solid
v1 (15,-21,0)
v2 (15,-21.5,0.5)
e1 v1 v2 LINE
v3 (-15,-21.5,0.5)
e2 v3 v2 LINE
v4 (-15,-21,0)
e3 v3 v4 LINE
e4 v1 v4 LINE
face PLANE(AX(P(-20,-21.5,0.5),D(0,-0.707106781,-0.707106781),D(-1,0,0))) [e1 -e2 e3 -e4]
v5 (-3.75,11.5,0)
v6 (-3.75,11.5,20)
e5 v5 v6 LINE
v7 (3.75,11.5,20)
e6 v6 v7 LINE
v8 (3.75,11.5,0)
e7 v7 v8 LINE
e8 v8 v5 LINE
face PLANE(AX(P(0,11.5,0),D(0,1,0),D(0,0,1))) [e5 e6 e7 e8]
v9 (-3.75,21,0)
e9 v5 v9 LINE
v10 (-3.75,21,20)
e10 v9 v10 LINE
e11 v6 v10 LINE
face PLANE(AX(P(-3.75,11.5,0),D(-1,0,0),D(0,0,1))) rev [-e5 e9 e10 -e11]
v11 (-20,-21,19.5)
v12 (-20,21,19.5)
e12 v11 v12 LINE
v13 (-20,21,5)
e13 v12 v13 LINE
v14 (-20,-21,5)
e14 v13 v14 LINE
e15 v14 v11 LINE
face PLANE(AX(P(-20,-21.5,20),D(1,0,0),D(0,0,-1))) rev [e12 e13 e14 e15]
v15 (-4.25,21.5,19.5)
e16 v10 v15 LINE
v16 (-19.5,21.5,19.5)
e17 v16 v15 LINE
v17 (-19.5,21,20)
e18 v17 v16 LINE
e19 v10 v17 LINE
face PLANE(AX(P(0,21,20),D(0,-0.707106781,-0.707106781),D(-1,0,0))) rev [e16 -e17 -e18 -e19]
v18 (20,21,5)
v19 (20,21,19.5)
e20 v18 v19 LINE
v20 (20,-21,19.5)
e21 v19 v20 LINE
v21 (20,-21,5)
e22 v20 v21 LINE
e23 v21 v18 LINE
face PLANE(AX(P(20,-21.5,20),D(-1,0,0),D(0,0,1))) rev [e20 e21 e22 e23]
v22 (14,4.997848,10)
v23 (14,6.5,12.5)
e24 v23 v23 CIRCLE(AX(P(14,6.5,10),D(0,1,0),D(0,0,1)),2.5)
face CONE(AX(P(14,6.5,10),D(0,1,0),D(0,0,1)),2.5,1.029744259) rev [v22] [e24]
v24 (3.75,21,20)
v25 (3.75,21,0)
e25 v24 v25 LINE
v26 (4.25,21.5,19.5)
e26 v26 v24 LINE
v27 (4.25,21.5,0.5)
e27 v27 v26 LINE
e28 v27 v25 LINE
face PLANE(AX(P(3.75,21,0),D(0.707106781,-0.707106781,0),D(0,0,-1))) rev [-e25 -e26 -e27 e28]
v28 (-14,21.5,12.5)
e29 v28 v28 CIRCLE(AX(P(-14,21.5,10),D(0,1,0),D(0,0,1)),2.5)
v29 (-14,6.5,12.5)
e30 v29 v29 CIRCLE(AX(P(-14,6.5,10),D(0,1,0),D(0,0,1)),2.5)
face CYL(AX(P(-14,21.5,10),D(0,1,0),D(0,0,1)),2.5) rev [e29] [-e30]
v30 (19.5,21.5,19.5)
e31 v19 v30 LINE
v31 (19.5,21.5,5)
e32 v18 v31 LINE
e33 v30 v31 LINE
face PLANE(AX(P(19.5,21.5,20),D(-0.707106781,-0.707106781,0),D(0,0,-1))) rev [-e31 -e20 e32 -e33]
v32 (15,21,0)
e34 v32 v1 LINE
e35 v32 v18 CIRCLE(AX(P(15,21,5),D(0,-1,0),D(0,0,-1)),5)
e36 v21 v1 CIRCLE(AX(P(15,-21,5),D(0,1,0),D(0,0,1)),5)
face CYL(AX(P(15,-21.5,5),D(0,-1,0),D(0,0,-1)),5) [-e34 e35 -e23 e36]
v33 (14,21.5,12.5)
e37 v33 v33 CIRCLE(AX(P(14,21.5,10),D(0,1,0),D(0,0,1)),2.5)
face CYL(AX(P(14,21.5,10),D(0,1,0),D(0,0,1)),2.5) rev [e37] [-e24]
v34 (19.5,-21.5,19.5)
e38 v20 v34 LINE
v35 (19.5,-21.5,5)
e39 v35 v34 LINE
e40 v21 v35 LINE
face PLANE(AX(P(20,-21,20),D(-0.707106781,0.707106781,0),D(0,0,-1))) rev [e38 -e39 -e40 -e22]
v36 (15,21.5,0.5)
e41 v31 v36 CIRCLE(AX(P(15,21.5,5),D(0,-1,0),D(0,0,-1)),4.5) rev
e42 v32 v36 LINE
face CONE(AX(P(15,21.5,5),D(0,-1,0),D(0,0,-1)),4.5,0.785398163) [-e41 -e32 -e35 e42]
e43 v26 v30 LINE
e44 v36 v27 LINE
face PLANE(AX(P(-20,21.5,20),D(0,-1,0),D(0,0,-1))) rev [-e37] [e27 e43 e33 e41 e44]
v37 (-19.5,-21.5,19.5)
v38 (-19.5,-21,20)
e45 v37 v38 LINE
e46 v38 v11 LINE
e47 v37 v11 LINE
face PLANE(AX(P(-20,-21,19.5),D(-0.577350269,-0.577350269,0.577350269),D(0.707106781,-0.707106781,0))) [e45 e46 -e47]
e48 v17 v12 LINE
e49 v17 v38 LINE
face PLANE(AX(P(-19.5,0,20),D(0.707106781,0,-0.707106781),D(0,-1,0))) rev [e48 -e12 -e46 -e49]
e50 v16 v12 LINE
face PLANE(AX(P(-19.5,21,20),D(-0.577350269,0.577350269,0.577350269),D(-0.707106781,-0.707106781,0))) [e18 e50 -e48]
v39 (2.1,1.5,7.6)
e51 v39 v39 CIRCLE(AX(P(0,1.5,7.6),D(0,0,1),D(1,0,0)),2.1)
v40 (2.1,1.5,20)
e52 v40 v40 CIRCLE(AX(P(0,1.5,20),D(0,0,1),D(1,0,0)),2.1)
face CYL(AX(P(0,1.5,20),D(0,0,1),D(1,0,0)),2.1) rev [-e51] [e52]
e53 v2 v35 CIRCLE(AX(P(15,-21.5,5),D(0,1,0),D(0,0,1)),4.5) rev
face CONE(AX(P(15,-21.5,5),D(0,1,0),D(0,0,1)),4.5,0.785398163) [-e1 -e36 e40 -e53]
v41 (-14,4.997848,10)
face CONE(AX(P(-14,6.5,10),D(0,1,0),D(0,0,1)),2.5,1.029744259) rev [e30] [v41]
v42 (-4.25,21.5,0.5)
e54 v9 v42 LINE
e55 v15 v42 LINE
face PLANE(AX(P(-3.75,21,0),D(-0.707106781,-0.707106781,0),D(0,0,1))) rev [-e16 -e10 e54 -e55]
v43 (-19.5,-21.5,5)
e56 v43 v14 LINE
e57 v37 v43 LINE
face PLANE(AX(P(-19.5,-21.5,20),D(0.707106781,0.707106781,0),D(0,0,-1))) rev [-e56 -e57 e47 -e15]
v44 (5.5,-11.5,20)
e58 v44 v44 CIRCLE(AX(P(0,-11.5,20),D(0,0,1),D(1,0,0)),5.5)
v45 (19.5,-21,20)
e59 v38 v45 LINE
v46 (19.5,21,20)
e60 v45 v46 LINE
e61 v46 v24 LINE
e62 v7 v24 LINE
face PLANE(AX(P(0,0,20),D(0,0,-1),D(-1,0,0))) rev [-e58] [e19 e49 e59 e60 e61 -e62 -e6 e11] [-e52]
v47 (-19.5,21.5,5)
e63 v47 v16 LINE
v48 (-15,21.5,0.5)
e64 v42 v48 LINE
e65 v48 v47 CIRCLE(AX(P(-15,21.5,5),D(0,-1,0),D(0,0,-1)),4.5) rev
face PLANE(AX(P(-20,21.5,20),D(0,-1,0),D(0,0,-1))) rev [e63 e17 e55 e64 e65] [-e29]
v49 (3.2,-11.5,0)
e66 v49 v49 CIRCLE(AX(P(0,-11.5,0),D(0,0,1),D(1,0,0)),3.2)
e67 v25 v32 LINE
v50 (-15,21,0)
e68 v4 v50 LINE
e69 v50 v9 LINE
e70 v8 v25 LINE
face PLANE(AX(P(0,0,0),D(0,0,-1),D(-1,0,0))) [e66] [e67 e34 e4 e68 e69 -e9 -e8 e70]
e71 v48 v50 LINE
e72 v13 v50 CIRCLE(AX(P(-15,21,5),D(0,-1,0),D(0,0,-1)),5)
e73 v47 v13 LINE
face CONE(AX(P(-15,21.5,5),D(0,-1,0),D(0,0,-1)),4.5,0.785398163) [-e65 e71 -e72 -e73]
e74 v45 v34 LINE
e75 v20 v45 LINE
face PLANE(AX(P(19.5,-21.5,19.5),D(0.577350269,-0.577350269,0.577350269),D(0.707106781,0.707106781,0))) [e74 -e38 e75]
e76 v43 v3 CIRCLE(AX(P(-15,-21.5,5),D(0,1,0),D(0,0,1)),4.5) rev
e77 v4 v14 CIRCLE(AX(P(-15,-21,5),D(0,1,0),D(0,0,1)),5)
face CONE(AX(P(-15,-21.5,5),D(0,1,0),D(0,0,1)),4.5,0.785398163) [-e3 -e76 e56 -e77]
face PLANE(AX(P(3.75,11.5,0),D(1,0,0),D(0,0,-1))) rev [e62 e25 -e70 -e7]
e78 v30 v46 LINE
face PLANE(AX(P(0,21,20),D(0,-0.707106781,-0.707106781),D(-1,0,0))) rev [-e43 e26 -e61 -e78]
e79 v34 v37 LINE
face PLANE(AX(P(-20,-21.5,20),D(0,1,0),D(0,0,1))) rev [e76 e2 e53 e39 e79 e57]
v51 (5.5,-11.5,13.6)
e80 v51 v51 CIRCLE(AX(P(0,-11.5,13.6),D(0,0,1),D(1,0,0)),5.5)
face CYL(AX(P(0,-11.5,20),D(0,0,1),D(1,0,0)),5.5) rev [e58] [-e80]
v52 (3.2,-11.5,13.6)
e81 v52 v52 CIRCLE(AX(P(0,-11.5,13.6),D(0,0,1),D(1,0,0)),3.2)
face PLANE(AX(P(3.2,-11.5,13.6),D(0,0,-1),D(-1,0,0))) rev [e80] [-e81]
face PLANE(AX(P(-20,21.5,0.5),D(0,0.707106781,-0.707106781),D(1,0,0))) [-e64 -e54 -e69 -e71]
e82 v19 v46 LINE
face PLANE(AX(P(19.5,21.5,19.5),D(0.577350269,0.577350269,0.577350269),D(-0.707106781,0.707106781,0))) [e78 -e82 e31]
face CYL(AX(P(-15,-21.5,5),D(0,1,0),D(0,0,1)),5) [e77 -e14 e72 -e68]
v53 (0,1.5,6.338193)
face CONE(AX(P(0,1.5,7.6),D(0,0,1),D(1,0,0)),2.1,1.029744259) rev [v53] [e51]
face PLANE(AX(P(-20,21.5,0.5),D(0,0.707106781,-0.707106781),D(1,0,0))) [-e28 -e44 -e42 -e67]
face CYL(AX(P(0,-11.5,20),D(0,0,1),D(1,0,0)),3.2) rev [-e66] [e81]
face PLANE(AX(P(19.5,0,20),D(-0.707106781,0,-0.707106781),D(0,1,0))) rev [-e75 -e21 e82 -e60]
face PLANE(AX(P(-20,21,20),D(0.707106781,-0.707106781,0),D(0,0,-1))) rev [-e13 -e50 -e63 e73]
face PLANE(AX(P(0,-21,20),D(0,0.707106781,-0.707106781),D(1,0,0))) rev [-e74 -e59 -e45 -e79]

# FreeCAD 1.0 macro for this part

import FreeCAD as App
import Part
import Sketcher
Q = App.Units.Quantity


def edges_at(feature, points):
    """Names of the edges that pass closest to the given points."""
    edges = feature.Shape.Edges
    near = lambda p: min(range(len(edges)), key=lambda i: edges[i].distToShape(Part.Vertex(*p))[0])
    return sorted({f"Edge{near(p) + 1}" for p in points})

doc = App.newDocument("Part")
params = doc.addObject("Spreadsheet::Sheet", "Params")
for row, (alias, value) in enumerate([
    ("sketch1_width", "40 mm"),
    ("sketch1_height", "43 mm"),
    ("pad1_length", "20 mm"),
    ("sketch2_height", "20 mm"),
    ("sketch2_width", "7.5 mm"),
    ("pocket1_length", "10 mm"),
    ("sketch3_diameter", "5 mm"),
    ("hole_diameter", "5 mm"),
    ("hole_depth", "15 mm"),
    ("fillet_radius", "5 mm"),
    ("chamfer_size", "0.5 mm"),
    ("sketch4_diameter", "6.4 mm"),
    ("hole2_diameter", "6.4 mm"),
    ("hole2_cbore_diameter", "11 mm"),
    ("hole2_cbore_depth", "6.4 mm"),
    ("sketch5_diameter", "4.2 mm"),
    ("hole3_diameter", "4.2 mm"),
    ("hole3_depth", "12.4 mm"),
], start=1):
    params.set(f"A{row}", alias)
    params.set(f"B{row}", "=" + value)
    params.setAlias(f"B{row}", alias)

body = doc.addObject("PartDesign::Body", "Body")

# Sketch on XY plane
sketch1 = doc.addObject("Sketcher::SketchObject", "Sketch")
body.addObject(sketch1)
sketch1.AttachmentSupport = (doc.XY_Plane, [""])
sketch1.MapMode = "FlatFace"
sketch1.addGeometry([
    Part.LineSegment(App.Vector(-20, 22, 0), App.Vector(-20, -22, 0)),
    Part.LineSegment(App.Vector(-20, -22, 0), App.Vector(20, -22, 0)),
    Part.LineSegment(App.Vector(20, -22, 0), App.Vector(20, 22, 0)),
    Part.LineSegment(App.Vector(20, 22, 0), App.Vector(-20, 22, 0)),
], False)
sketch1.addConstraint([
    Sketcher.Constraint("Coincident", 0, 2, 1, 1),
    Sketcher.Constraint("Coincident", 1, 2, 2, 1),
    Sketcher.Constraint("Coincident", 2, 2, 3, 1),
    Sketcher.Constraint("Coincident", 3, 2, 0, 1),
    Sketcher.Constraint("Vertical", 0),
    Sketcher.Constraint("Horizontal", 1),
    Sketcher.Constraint("Vertical", 2),
    Sketcher.Constraint("Horizontal", 3),
    Sketcher.Constraint("Symmetric", 0, 2, 2, 2, -1, 1),
    Sketcher.Constraint("DistanceX", 1, 1, 1, 2, Q("40 mm")),
    Sketcher.Constraint("DistanceY", 0, 2, 0, 1, Q("43 mm")),
])
sketch1.setExpression("Constraints[9]", "Params.sketch1_width")
sketch1.setExpression("Constraints[10]", "Params.sketch1_height")
pad1 = doc.addObject("PartDesign::Pad", "Pad")
body.addObject(pad1)
pad1.Profile = sketch1
pad1.setExpression("Length", "Params.pad1_length")

# Sketch on XZ plane
sketch2 = doc.addObject("Sketcher::SketchObject", "Sketch001")
body.addObject(sketch2)
sketch2.AttachmentSupport = (doc.XZ_Plane, [""])
sketch2.MapMode = "FlatFace"
sketch2.AttachmentOffset = App.Placement(App.Vector(0, 0, -21.5), App.Rotation())
sketch2.addGeometry([
    Part.LineSegment(App.Vector(-4, 0, 0), App.Vector(-4, 20, 0)),
    Part.LineSegment(App.Vector(-4, 20, 0), App.Vector(4, 20, 0)),
    Part.LineSegment(App.Vector(4, 20, 0), App.Vector(4, 0, 0)),
    Part.LineSegment(App.Vector(4, 0, 0), App.Vector(-4, 0, 0)),
], False)
sketch2.addConstraint([
    Sketcher.Constraint("Coincident", 0, 2, 1, 1),
    Sketcher.Constraint("Coincident", 1, 2, 2, 1),
    Sketcher.Constraint("Coincident", 2, 2, 3, 1),
    Sketcher.Constraint("Coincident", 3, 2, 0, 1),
    Sketcher.Constraint("Vertical", 0),
    Sketcher.Constraint("Horizontal", 1),
    Sketcher.Constraint("Vertical", 2),
    Sketcher.Constraint("Horizontal", 3),
    Sketcher.Constraint("Symmetric", 2, 2, 3, 2, -1, 1),
    Sketcher.Constraint("DistanceY", 0, 1, 0, 2, Q("20 mm")),
    Sketcher.Constraint("DistanceX", 1, 1, 1, 2, Q("7.5 mm")),
])
sketch2.setExpression("Constraints[9]", "Params.sketch2_height")
sketch2.setExpression("Constraints[10]", "Params.sketch2_width")
pocket1 = doc.addObject("PartDesign::Pocket", "Pocket")
body.addObject(pocket1)
pocket1.Profile = sketch2
pocket1.setExpression("Length", "Params.pocket1_length")
pocket1.Reversed = True

# Sketch on XZ plane
sketch3 = doc.addObject("Sketcher::SketchObject", "Sketch002")
body.addObject(sketch3)
sketch3.AttachmentSupport = (doc.XZ_Plane, [""])
sketch3.MapMode = "FlatFace"
sketch3.AttachmentOffset = App.Placement(App.Vector(0, 0, -21.5), App.Rotation())
sketch3.addGeometry([
    Part.Circle(App.Vector(-14, 10, 0), App.Vector(0, 0, 1), 2.5),
    Part.Circle(App.Vector(14, 10, 0), App.Vector(0, 0, 1), 2.5),
], False)
sketch3.addConstraint([
    Sketcher.Constraint("Equal", 0, 1),
    Sketcher.Constraint("Symmetric", 0, 3, 1, 3, -2),
    Sketcher.Constraint("Diameter", 0, Q("5 mm")),
    Sketcher.Constraint("DistanceX", 0, 3, -1, 1, Q("14 mm")),
    Sketcher.Constraint("DistanceY", -1, 1, 0, 3, Q("10 mm")),
])
sketch3.setExpression("Constraints[2]", "Params.sketch3_diameter")
doc.recompute()
hole = doc.addObject("PartDesign::Hole", "Hole")
body.addObject(hole)
hole.Profile = sketch3
hole.ThreadType = "None"
hole.setExpression("Diameter", "Params.hole_diameter")
hole.DepthType = "Dimension"
hole.setExpression("Depth", "Params.hole_depth")
hole.DrillPoint = "Angled"
hole.DrillPointAngle = 118
hole.Reversed = True
doc.recompute()

fillet = doc.addObject("PartDesign::Fillet", "Fillet")
body.addObject(fillet)
fillet.Base = (hole, edges_at(hole, [(-20, 0, 0), (20, 0, 0)]))
fillet.setExpression("Radius", "Params.fillet_radius")
doc.recompute()

chamfer = doc.addObject("PartDesign::Chamfer", "Chamfer")
body.addObject(chamfer)
chamfer.Base = (fillet, edges_at(fillet, [
    (-20, 0, 20),
    (-9.375, 21.5, 0),
    (0, -21.5, 20),
    (-11.875, 21.5, 20),
    (-3.75, 21.5, 10),
    (3.75, 21.5, 10),
    (0, -21.5, 0),
    (18.536, -21.5, 1.464),
    (-18.536, -21.5, 1.464),
    (9.375, 21.5, 0),
    (-18.536, 21.5, 1.464),
    (20, 0, 20),
    (18.536, 21.5, 1.464),
    (20, -21.5, 12.5),
    (-20, -21.5, 12.5),
    (-20, 21.5, 12.5),
    (20, 21.5, 12.5),
    (11.875, 21.5, 20),
]))
chamfer.setExpression("Size", "Params.chamfer_size")

# Sketch on XY plane
sketch4 = doc.addObject("Sketcher::SketchObject", "Sketch003")
body.addObject(sketch4)
sketch4.AttachmentSupport = (doc.XY_Plane, [""])
sketch4.MapMode = "FlatFace"
sketch4.AttachmentOffset = App.Placement(App.Vector(0, 0, 20), App.Rotation())
sketch4.addGeometry(Part.Circle(App.Vector(0, -11.5, 0), App.Vector(0, 0, 1), 3.2), False)
sketch4.addConstraint([
    Sketcher.Constraint("PointOnObject", 0, 3, -2),
    Sketcher.Constraint("Diameter", 0, Q("6.4 mm")),
    Sketcher.Constraint("DistanceY", 0, 3, -1, 1, Q("11.5 mm")),
])
sketch4.setExpression("Constraints[1]", "Params.sketch4_diameter")
doc.recompute()
hole2 = doc.addObject("PartDesign::Hole", "Hole001")
body.addObject(hole2)
hole2.Profile = sketch4
hole2.ThreadType = "None"
hole2.setExpression("Diameter", "Params.hole2_diameter")
hole2.DepthType = "ThroughAll"
hole2.HoleCutType = "Counterbore"
hole2.setExpression("HoleCutDiameter", "Params.hole2_cbore_diameter")
hole2.setExpression("HoleCutDepth", "Params.hole2_cbore_depth")

# Sketch on XY plane
sketch5 = doc.addObject("Sketcher::SketchObject", "Sketch004")
body.addObject(sketch5)
sketch5.AttachmentSupport = (doc.XY_Plane, [""])
sketch5.MapMode = "FlatFace"
sketch5.AttachmentOffset = App.Placement(App.Vector(0, 0, 20), App.Rotation())
sketch5.addGeometry(Part.Circle(App.Vector(0, 1.5, 0), App.Vector(0, 0, 1), 2.1), False)
sketch5.addConstraint([
    Sketcher.Constraint("PointOnObject", 0, 3, -2),
    Sketcher.Constraint("Diameter", 0, Q("4.2 mm")),
    Sketcher.Constraint("DistanceY", -1, 1, 0, 3, Q("1.5 mm")),
])
sketch5.setExpression("Constraints[1]", "Params.sketch5_diameter")
doc.recompute()
hole3 = doc.addObject("PartDesign::Hole", "Hole002")
body.addObject(hole3)
hole3.Profile = sketch5
hole3.ThreadType = "None"
hole3.setExpression("Diameter", "Params.hole3_diameter")
hole3.DepthType = "Dimension"
hole3.setExpression("Depth", "Params.hole3_depth")
hole3.DrillPoint = "Angled"
hole3.DrillPointAngle = 118

doc.recompute()
